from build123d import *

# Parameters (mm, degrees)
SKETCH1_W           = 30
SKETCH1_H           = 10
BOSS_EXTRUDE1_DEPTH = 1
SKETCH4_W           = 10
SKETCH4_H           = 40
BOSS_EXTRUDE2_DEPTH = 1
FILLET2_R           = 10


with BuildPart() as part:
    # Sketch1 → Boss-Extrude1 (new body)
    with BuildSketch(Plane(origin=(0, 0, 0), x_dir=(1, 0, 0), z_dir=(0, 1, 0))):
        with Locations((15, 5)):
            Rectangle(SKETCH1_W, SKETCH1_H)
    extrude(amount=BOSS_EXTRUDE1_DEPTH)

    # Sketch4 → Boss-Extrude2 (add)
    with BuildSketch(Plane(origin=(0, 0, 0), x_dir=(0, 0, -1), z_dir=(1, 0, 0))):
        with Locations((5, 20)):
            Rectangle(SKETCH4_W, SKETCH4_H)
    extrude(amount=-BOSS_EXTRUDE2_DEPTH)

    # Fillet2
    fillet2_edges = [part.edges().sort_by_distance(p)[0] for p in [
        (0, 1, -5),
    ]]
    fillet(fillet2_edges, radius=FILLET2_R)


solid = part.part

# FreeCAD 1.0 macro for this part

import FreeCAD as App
import Part
import Sketcher

V = App.Vector
Q = App.Units.Quantity


def edges_at(feature, points):
    """Names of the edges that pass closest to the given points."""
    edges = feature.Shape.Edges
    near = lambda p: min(range(len(edges)), key=lambda i: edges[i].distToShape(Part.Vertex(*p))[0])
    return sorted({f"Edge{near(p) + 1}" for p in points})

doc = App.newDocument("Part")
params = doc.addObject("Spreadsheet::Sheet", "Params")
for row, (alias, value) in enumerate([
    ("sketch1_width", "30 mm"),
    ("sketch1_height", "10 mm"),
    ("pad1_length", "1 mm"),
    ("sketch2_width", "40 mm"),
    ("sketch2_height", "10 mm"),
    ("pad2_length", "1 mm"),
    ("fillet_radius", "10 mm"),
], start=1):
    params.set(f"A{row}", alias)
    params.set(f"B{row}", "=" + value)
    params.setAlias(f"B{row}", alias)

body = doc.addObject("PartDesign::Body", "Body")

sketch1 = body.newObject("Sketcher::SketchObject", "Sketch")
sketch1.AttachmentSupport = (doc.getObject("XZ_Plane"), [""])
sketch1.MapMode = "FlatFace"
sketch1.addGeometry([
    Part.LineSegment(V(0, -10, 0), V(0, 0, 0)),
    Part.LineSegment(V(0, 0, 0), V(30, 0, 0)),
    Part.LineSegment(V(30, 0, 0), V(30, -10, 0)),
    Part.LineSegment(V(30, -10, 0), V(0, -10, 0)),
], False)
sketch1.addConstraint([
    Sketcher.Constraint("Coincident", 0, 2, 1, 1),
    Sketcher.Constraint("Coincident", 1, 2, 2, 1),
    Sketcher.Constraint("Coincident", 2, 2, 3, 1),
    Sketcher.Constraint("Coincident", 3, 2, 0, 1),
    Sketcher.Constraint("Vertical", 0),
    Sketcher.Constraint("Horizontal", 1),
    Sketcher.Constraint("Vertical", 2),
    Sketcher.Constraint("Horizontal", 3),
    Sketcher.Constraint("Coincident", 0, 2, -1, 1),
    Sketcher.Constraint("DistanceX", 1, 1, 1, 2, Q("30 mm")),
    Sketcher.Constraint("DistanceY", 0, 1, 0, 2, Q("10 mm")),
])
sketch1.setExpression("Constraints[9]", "Params.sketch1_width")
sketch1.setExpression("Constraints[10]", "Params.sketch1_height")
pad1 = body.newObject("PartDesign::Pad", "Pad")
pad1.Profile = sketch1
pad1.setExpression("Length", "Params.pad1_length")
pad1.Reversed = True

sketch2 = body.newObject("Sketcher::SketchObject", "Sketch001")
sketch2.AttachmentSupport = (doc.getObject("YZ_Plane"), [""])
sketch2.MapMode = "FlatFace"
sketch2.addGeometry([
    Part.LineSegment(V(40, 0, 0), V(0, 0, 0)),
    Part.LineSegment(V(0, 0, 0), V(0, -10, 0)),
    Part.LineSegment(V(0, -10, 0), V(40, -10, 0)),
    Part.LineSegment(V(40, -10, 0), V(40, 0, 0)),
], False)
sketch2.addConstraint([
    Sketcher.Constraint("Coincident", 0, 2, 1, 1),
    Sketcher.Constraint("Coincident", 1, 2, 2, 1),
    Sketcher.Constraint("Coincident", 2, 2, 3, 1),
    Sketcher.Constraint("Coincident", 3, 2, 0, 1),
    Sketcher.Constraint("Horizontal", 0),
    Sketcher.Constraint("Vertical", 1),
    Sketcher.Constraint("Horizontal", 2),
    Sketcher.Constraint("Vertical", 3),
    Sketcher.Constraint("Coincident", 0, 2, -1, 1),
    Sketcher.Constraint("DistanceX", 0, 2, 0, 1, Q("40 mm")),
    Sketcher.Constraint("DistanceY", 1, 2, 1, 1, Q("10 mm")),
])
sketch2.setExpression("Constraints[9]", "Params.sketch2_width")
sketch2.setExpression("Constraints[10]", "Params.sketch2_height")
pad2 = body.newObject("PartDesign::Pad", "Pad001")
pad2.Profile = sketch2
pad2.setExpression("Length", "Params.pad2_length")
pad2.Reversed = True
doc.recompute()

fillet = body.newObject("PartDesign::Fillet", "Fillet")
fillet.Base = (pad2, edges_at(pad2, [(0, 1, -5)]))
fillet.setExpression("Radius", "Params.fillet_radius")

doc.recompute()
